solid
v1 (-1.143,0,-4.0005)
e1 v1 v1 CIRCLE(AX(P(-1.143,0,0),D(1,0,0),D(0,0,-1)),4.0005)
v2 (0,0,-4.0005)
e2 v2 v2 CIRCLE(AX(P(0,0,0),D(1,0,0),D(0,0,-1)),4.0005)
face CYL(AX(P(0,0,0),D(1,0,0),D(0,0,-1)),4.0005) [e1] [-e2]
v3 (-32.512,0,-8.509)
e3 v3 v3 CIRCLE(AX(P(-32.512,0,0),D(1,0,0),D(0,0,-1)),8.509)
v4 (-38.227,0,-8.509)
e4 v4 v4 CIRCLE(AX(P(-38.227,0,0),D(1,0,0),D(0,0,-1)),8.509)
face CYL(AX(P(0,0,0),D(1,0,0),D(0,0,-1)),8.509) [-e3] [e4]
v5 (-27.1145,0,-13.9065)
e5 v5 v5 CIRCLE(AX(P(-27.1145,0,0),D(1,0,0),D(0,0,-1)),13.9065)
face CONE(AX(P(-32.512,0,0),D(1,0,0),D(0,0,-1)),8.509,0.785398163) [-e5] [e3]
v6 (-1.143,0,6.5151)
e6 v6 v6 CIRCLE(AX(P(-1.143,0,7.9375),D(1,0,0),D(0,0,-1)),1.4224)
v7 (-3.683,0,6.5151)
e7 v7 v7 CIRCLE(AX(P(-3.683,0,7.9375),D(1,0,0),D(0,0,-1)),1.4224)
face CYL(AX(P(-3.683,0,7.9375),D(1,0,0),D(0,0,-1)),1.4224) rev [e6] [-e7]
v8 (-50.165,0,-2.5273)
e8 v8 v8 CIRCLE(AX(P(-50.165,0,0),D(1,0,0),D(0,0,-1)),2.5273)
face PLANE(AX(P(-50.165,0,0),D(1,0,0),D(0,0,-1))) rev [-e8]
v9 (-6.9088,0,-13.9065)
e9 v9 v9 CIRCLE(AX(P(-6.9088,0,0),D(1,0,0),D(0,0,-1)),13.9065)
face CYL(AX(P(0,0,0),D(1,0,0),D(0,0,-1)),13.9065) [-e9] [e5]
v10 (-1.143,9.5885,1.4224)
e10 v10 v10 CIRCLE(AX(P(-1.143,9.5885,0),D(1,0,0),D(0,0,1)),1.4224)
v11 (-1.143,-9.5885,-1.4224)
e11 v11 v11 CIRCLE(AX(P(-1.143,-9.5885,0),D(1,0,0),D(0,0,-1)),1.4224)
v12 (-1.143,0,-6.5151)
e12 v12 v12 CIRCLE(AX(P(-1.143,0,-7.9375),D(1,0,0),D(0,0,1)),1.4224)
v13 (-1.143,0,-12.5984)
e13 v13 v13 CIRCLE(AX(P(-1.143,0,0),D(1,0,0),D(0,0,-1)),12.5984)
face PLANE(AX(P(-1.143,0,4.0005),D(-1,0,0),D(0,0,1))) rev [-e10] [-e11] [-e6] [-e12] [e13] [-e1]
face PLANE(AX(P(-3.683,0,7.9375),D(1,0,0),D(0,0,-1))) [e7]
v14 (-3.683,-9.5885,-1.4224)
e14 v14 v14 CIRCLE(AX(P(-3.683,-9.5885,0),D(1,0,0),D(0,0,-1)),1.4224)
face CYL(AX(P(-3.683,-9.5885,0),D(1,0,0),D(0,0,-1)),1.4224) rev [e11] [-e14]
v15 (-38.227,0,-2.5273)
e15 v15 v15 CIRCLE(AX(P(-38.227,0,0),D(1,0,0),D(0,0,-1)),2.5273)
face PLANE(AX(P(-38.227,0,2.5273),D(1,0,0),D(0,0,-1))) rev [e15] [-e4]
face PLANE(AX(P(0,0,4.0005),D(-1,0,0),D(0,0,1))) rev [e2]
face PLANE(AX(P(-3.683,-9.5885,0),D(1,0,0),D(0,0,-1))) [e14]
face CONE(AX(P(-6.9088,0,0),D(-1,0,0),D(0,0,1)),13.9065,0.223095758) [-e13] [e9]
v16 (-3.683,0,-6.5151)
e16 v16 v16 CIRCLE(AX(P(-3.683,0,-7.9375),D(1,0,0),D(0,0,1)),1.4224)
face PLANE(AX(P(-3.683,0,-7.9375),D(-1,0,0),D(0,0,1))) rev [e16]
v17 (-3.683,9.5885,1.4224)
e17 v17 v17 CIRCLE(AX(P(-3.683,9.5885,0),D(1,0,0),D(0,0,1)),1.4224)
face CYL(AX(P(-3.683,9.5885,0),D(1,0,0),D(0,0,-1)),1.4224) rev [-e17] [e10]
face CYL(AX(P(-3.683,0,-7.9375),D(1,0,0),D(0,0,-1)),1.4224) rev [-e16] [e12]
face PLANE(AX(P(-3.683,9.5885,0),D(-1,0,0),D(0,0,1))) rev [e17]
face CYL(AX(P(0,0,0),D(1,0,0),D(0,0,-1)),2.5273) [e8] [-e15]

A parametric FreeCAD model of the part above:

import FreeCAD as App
import Part
import Sketcher
from FreeCAD import Vector
Q = App.Units.Quantity


def add_polygon(sketch, points):
    """Adds a closed chain of lines whose ends are joined by coincident constraints."""
    first, n = sketch.GeometryCount, len(points)
    for a, b in zip(points, points[1:] + points[:1]):
        sketch.addGeometry(Part.LineSegment(App.Vector(*a, 0), App.Vector(*b, 0)), False)
    for i in range(n):
        sketch.addConstraint(Sketcher.Constraint("Coincident", first + i, 2, first + (i + 1) % n, 1))

doc = App.newDocument("Part")
body = doc.addObject("PartDesign::Body", "Body")

sketch1 = body.newObject("Sketcher::SketchObject", "Sketch")
sketch1.AttachmentSupport = (doc.getObject("XZ_Plane"), [""])
sketch1.MapMode = "FlatFace"
add_polygon(sketch1, [(0, 0), (-50.2, 0), (-50.2, 2.5), (-38.2, 2.5), (-38.2, 8.5), (-32.5, 8.5), (-27.1, 13.9), (-6.9, 13.9), (-1.1, 12.6), (-1.1, 4), (0, 4)])
sketch1.addConstraint(Sketcher.Constraint("Horizontal", 0))
sketch1.addConstraint(Sketcher.Constraint("Vertical", 1))
sketch1.addConstraint(Sketcher.Constraint("Horizontal", 2))
sketch1.addConstraint(Sketcher.Constraint("Vertical", 3))
sketch1.addConstraint(Sketcher.Constraint("Horizontal", 4))
sketch1.addConstraint(Sketcher.Constraint("Horizontal", 6))
sketch1.addConstraint(Sketcher.Constraint("Vertical", 8))
sketch1.addConstraint(Sketcher.Constraint("Horizontal", 9))
sketch1.addConstraint(Sketcher.Constraint("Vertical", 10))
sketch1.addConstraint(Sketcher.Constraint("Coincident", 10, 2, -1, 1))
sketch1.addConstraint(Sketcher.Constraint("Angle", 5, Q("45 deg")))
sketch1.addConstraint(Sketcher.Constraint("DistanceX", 2, 1, 2, 2, Q("0.47 in")))
sketch1.addConstraint(Sketcher.Constraint("DistanceX", 0, 2, 0, 1, Q("1.975 in")))
sketch1.addConstraint(Sketcher.Constraint("DistanceX", 4, 1, 4, 2, Q("0.225 in")))
sketch1.addConstraint(Sketcher.Constraint("DistanceX", 9, 1, 9, 2, Q("0.045 in")))
sketch1.addConstraint(Sketcher.Constraint("DistanceY", 8, 2, 6, 2, Q("0.39 in")))
sketch1.addConstraint(Sketcher.Constraint("DistanceX", 6, 1, 6, 2, Q("0.7955 in")))
sketch1.addConstraint(Sketcher.Constraint("DistanceY", 1, 1, 1, 2, Q("0.0995 in")))
sketch1.addConstraint(Sketcher.Constraint("DistanceY", 3, 1, 3, 2, Q("0.2355 in")))
sketch1.addConstraint(Sketcher.Constraint("DistanceY", 8, 2, 8, 1, Q("0.3385 in")))
sketch1.addConstraint(Sketcher.Constraint("DistanceY", 10, 2, 10, 1, Q("0.1575 in")))
revolution = body.newObject("PartDesign::Revolution", "Revolution")
revolution.Profile = sketch1
revolution.ReferenceAxis = (sketch1, ["H_Axis"])
revolution.Angle = 360

sketch2 = body.newObject("Sketcher::SketchObject", "Sketch001")
sketch2.AttachmentSupport = (doc.getObject("YZ_Plane"), [""])
sketch2.MapMode = "FlatFace"
sketch2.AttachmentOffset = App.Placement(Vector(0, 0, -0.045 * 25.4), App.Rotation())
sketch2.addGeometry(Part.Circle(Vector(0, 7.9, 0), Vector(0, 0, 1), 1.4), False)
sketch2.addGeometry(Part.Circle(Vector(-9.6, 0, 0), Vector(0, 0, 1), 1.4), False)
sketch2.addGeometry(Part.Circle(Vector(0, -7.9, 0), Vector(0, 0, 1), 1.4), False)
sketch2.addGeometry(Part.Circle(Vector(9.6, 0, 0), Vector(0, 0, 1), 1.4), False)
sketch2.addConstraint(Sketcher.Constraint("Equal", 0, 1))
sketch2.addConstraint(Sketcher.Constraint("Equal", 1, 2))
sketch2.addConstraint(Sketcher.Constraint("Equal", 2, 3))
sketch2.addConstraint(Sketcher.Constraint("Symmetric", 0, 3, 2, 3, -1, 1))
sketch2.addConstraint(Sketcher.Constraint("Symmetric", 1, 3, 3, 3, -1, 1))
sketch2.addConstraint(Sketcher.Constraint("PointOnObject", 0, 3, -2))
sketch2.addConstraint(Sketcher.Constraint("PointOnObject", 1, 3, -1))
sketch2.addConstraint(Sketcher.Constraint("Diameter", 0, Q("0.112 in")))
sketch2.addConstraint(Sketcher.Constraint("DistanceY", -1, 1, 0, 3, Q("0.3125 in")))
sketch2.addConstraint(Sketcher.Constraint("DistanceX", 1, 3, 3, 3, Q("0.755 in")))
pocket1 = body.newObject("PartDesign::Pocket", "Pocket")
pocket1.Profile = sketch2
pocket1.Length = Q("0.1 in")

doc.recompute()
